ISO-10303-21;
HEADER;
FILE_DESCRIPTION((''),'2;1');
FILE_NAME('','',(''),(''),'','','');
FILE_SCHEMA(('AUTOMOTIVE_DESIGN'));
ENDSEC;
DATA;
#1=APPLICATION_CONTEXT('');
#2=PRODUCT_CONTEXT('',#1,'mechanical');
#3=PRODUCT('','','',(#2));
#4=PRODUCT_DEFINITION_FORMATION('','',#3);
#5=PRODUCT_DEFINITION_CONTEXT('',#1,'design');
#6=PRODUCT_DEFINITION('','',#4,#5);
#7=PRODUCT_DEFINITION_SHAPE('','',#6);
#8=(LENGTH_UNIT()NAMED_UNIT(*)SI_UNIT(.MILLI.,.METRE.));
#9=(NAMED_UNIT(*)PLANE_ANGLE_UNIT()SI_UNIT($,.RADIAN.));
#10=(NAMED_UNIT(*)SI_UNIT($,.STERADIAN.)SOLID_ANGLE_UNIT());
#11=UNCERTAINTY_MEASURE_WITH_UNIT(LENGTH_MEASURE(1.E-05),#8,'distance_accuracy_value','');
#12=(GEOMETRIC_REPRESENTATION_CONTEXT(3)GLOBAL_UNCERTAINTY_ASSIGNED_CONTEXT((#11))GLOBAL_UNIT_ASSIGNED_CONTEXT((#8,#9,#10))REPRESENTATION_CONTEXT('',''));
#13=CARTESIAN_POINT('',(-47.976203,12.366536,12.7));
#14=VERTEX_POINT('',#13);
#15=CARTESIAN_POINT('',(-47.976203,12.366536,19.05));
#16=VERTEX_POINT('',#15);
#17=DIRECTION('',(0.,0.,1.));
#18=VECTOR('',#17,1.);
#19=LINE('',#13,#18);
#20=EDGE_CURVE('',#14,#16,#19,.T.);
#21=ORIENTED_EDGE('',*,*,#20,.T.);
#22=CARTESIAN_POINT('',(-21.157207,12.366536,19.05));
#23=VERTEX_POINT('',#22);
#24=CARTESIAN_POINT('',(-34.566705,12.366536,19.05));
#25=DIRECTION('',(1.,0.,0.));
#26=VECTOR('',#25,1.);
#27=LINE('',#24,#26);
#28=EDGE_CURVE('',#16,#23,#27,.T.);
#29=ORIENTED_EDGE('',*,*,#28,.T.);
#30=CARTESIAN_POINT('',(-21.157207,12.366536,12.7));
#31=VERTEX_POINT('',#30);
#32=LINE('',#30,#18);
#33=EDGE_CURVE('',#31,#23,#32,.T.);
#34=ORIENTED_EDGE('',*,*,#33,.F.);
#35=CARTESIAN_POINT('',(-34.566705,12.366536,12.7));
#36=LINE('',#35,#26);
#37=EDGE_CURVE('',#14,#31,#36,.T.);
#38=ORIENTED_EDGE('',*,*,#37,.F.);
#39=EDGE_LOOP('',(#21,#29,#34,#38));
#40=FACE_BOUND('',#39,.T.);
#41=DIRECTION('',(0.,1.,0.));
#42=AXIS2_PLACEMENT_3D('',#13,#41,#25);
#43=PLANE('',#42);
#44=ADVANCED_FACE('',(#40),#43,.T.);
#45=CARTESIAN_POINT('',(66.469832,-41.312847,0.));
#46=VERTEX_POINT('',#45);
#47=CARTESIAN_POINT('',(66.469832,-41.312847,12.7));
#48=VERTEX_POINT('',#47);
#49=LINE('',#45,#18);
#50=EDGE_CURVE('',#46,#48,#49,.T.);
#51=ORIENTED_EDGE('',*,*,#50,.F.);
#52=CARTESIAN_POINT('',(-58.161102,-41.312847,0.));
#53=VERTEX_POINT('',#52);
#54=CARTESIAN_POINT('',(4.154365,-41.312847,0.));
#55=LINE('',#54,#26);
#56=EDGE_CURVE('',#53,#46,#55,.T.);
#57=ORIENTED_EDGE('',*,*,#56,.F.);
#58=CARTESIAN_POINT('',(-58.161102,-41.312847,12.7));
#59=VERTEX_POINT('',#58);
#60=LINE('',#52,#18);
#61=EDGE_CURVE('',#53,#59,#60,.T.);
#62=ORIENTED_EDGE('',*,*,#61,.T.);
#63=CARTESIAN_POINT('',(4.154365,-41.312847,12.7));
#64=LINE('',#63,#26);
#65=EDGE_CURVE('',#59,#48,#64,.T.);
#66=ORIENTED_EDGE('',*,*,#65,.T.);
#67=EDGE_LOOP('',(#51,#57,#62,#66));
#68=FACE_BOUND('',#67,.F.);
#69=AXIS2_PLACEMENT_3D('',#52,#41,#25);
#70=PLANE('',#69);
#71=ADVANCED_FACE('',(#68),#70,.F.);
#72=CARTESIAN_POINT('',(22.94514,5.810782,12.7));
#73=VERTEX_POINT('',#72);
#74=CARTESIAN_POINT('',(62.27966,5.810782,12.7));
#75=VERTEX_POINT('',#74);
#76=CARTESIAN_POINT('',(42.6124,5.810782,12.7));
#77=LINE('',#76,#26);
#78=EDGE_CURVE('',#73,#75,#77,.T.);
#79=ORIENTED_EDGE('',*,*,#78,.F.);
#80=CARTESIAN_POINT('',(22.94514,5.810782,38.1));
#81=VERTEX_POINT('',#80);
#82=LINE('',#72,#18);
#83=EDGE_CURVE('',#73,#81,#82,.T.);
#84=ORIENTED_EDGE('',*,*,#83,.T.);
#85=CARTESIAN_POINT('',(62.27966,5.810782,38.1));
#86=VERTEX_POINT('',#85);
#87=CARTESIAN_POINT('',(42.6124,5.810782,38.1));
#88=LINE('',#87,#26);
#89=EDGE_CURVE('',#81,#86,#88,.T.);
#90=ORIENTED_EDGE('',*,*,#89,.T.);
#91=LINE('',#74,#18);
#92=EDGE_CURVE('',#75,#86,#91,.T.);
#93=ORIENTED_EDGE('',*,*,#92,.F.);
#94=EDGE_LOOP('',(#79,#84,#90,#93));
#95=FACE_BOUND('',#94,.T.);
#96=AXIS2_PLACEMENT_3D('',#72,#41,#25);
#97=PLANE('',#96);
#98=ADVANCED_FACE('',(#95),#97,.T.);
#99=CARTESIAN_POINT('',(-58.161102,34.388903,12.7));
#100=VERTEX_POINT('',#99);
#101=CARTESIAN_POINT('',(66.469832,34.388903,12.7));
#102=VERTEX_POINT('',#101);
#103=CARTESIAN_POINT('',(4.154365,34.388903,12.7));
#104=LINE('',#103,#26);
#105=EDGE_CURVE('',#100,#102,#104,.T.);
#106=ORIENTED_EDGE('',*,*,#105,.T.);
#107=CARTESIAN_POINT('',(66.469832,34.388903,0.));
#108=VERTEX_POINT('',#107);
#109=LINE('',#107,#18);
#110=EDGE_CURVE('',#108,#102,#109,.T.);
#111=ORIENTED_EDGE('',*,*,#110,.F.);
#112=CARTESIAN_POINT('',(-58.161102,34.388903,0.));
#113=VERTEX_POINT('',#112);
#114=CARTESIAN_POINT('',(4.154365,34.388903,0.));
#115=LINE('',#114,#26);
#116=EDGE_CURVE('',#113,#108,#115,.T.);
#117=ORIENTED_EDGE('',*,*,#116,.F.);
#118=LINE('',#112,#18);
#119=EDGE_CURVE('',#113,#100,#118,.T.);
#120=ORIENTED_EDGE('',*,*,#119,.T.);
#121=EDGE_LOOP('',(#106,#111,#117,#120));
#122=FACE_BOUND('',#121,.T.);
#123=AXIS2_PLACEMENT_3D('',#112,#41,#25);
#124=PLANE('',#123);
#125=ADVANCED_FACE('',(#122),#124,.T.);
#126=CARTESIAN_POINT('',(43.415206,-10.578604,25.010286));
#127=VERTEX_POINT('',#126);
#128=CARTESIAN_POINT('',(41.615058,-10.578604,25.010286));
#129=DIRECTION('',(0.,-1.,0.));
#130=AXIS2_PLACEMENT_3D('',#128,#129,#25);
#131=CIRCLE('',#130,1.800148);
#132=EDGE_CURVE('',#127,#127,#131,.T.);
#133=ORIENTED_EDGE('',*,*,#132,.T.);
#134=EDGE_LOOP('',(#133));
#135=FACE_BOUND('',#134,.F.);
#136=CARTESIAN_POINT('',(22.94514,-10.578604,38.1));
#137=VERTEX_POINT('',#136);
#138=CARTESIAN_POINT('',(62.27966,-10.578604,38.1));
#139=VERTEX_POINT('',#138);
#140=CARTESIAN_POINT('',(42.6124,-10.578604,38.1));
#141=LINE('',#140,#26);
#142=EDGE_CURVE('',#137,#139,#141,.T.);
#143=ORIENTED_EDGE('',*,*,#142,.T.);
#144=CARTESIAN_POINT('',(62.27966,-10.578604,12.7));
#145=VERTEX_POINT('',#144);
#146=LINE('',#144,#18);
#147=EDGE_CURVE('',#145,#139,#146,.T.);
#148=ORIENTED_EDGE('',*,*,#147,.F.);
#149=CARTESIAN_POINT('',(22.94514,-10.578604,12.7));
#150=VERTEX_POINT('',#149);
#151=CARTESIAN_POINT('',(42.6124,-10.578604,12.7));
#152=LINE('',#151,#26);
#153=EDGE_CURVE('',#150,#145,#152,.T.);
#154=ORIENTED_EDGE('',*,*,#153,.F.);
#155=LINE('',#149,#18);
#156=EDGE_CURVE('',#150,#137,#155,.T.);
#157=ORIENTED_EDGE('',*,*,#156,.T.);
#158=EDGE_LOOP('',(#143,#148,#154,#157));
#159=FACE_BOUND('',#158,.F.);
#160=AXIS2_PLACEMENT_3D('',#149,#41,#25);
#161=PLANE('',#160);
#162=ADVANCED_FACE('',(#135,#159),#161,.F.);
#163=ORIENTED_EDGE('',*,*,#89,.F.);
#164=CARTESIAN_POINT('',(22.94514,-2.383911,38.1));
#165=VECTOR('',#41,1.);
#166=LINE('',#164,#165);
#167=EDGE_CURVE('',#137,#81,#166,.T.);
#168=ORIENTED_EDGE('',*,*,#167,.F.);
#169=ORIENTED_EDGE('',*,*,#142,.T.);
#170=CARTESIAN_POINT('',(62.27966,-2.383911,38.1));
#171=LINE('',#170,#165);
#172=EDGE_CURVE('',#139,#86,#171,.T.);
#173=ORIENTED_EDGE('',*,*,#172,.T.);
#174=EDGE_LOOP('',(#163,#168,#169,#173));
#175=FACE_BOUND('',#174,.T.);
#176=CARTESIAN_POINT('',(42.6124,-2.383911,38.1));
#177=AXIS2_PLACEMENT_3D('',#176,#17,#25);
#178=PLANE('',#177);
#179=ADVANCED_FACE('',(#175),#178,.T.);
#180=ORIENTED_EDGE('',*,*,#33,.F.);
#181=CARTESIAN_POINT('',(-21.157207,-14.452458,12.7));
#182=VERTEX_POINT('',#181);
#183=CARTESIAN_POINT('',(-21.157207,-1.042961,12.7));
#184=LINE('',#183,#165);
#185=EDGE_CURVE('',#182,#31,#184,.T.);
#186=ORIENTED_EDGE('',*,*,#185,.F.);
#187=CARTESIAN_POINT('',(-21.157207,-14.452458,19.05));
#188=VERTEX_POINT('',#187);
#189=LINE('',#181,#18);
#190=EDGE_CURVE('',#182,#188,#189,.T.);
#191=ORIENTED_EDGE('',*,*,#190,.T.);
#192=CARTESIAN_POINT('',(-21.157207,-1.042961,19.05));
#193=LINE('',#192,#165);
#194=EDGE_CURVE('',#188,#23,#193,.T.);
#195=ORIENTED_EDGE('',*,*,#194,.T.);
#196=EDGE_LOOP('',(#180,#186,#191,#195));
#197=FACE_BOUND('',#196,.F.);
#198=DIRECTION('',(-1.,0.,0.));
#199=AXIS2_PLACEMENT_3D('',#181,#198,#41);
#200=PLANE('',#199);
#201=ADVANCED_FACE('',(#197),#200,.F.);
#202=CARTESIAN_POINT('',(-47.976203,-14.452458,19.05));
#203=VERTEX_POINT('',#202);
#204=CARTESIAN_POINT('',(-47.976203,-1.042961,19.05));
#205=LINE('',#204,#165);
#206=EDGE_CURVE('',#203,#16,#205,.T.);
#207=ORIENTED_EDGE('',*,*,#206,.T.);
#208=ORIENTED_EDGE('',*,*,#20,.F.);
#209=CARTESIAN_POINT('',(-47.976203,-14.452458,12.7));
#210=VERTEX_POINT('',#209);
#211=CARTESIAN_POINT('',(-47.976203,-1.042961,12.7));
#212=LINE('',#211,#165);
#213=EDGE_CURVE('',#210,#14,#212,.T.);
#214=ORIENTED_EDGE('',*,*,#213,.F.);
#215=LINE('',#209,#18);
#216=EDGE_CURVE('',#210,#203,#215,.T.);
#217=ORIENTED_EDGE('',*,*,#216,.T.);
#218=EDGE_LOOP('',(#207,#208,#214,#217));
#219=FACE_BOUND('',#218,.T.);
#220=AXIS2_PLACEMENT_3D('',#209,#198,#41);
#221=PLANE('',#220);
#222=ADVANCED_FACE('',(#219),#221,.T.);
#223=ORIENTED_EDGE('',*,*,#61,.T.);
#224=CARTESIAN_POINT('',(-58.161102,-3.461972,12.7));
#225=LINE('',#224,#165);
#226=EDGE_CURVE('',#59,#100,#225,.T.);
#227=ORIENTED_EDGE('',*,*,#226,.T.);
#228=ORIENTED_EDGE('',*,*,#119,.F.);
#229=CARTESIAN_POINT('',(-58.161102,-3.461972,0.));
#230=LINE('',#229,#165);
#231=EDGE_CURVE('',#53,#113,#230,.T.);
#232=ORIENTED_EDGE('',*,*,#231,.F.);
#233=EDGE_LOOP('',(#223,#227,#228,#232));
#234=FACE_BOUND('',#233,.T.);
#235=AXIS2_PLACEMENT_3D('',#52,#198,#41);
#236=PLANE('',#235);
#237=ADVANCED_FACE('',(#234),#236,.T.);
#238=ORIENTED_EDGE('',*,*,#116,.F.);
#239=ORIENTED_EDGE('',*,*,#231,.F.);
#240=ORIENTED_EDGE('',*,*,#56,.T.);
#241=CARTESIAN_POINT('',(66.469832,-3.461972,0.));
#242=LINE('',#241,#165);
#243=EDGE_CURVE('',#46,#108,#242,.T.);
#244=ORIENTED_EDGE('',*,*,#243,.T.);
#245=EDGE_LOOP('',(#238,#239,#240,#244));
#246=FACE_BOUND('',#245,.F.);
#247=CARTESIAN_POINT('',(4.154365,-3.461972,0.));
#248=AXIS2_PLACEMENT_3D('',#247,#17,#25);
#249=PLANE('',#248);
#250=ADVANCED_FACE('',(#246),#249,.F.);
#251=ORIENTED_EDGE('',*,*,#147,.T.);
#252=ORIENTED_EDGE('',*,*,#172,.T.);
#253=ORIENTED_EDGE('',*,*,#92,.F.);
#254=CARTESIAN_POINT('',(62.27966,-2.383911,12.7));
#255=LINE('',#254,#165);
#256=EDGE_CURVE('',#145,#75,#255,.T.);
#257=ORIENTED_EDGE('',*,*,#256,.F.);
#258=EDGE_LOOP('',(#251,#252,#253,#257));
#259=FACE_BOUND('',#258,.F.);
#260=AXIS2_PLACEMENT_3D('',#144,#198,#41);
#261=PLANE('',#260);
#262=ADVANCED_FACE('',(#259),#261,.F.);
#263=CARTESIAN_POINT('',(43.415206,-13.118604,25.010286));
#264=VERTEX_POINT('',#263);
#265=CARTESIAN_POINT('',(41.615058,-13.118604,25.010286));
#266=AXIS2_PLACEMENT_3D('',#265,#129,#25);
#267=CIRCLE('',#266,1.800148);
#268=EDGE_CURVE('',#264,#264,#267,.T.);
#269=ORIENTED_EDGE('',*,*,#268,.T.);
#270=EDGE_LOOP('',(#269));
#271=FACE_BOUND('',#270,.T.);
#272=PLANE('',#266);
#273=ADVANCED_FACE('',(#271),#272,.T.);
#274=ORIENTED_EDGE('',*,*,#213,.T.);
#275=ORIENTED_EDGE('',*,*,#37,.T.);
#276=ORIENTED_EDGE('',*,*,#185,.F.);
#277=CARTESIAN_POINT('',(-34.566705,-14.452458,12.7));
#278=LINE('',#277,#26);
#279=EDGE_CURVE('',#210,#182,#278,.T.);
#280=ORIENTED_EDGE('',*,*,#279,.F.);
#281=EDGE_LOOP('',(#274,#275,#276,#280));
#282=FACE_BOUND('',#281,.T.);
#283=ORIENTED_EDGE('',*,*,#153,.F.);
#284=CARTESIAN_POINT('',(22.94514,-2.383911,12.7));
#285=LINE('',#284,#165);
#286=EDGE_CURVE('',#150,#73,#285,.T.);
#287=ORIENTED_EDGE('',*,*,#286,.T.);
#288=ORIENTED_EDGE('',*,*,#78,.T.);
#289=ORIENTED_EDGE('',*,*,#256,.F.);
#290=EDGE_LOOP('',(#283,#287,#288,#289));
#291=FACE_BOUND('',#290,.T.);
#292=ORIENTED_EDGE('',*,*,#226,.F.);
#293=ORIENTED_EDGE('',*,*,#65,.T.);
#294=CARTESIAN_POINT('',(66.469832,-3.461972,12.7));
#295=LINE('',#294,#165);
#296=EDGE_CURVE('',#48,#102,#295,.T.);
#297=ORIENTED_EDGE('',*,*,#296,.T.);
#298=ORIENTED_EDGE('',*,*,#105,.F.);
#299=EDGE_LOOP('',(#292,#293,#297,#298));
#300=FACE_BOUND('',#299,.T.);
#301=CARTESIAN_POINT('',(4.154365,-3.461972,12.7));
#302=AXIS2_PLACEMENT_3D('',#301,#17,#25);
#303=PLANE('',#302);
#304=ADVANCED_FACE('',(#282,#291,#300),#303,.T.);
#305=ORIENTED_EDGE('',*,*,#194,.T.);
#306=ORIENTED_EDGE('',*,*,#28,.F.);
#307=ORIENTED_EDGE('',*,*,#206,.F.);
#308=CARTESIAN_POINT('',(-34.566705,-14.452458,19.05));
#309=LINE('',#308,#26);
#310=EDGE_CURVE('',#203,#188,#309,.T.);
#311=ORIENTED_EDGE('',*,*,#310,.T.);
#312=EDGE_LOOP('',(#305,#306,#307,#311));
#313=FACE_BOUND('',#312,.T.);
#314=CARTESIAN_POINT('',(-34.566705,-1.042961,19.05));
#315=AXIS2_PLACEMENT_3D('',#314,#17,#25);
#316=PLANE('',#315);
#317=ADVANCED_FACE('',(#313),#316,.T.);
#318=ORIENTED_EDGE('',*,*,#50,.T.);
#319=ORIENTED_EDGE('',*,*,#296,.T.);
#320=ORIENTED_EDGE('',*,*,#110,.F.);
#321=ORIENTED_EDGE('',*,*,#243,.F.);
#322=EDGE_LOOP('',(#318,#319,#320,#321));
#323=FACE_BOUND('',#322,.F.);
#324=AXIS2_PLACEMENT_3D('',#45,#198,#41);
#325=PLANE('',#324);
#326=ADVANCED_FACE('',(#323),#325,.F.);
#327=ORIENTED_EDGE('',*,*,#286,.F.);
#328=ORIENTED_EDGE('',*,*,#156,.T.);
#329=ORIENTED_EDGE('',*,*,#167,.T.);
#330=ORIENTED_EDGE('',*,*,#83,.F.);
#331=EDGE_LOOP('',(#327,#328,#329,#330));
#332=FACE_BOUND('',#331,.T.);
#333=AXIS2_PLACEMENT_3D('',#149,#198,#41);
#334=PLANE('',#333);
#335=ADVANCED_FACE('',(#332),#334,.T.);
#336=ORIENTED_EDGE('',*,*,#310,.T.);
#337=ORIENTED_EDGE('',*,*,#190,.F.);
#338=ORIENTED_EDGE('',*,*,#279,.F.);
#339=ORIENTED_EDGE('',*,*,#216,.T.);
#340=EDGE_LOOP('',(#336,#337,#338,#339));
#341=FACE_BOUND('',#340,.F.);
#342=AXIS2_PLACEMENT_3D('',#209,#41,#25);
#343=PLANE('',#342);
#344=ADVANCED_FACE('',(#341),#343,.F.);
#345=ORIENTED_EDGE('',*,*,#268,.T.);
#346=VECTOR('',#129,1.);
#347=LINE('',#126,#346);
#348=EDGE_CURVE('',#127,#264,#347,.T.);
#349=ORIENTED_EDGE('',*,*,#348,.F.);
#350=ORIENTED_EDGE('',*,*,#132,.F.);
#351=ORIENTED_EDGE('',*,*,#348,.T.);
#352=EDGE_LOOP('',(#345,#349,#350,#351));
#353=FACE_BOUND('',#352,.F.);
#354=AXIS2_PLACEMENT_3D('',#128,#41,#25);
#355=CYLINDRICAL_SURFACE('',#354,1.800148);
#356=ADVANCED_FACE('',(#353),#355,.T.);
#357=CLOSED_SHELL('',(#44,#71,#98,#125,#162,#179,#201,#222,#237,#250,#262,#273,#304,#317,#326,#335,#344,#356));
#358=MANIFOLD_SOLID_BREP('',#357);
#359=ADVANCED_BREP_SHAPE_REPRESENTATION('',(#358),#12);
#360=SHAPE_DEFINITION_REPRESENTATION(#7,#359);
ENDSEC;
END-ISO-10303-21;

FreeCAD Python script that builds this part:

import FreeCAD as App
import Part
import Sketcher
from FreeCAD import Vector
Q = App.Units.Quantity

doc = App.newDocument("Part")
body = doc.addObject("PartDesign::Body", "Body")

# Sketch on XY plane
sketch1 = body.newObject("Sketcher::SketchObject", "Sketch")
sketch1.AttachmentSupport = (doc.getObject("XY_Plane"), [""])
sketch1.MapMode = "FlatFace"
sketch1.addGeometry([
    Part.LineSegment(Vector(-58, 34, 0), Vector(-58, -41, 0)),
    Part.LineSegment(Vector(-58, -41, 0), Vector(66, -41, 0)),
    Part.LineSegment(Vector(66, -41, 0), Vector(66, 34, 0)),
    Part.LineSegment(Vector(66, 34, 0), Vector(-58, 34, 0)),
], False)
sketch1.addConstraint([
    Sketcher.Constraint("Coincident", 0, 2, 1, 1),
    Sketcher.Constraint("Coincident", 1, 2, 2, 1),
    Sketcher.Constraint("Coincident", 2, 2, 3, 1),
    Sketcher.Constraint("Coincident", 3, 2, 0, 1),
    Sketcher.Constraint("Vertical", 0),
    Sketcher.Constraint("Horizontal", 1),
    Sketcher.Constraint("Vertical", 2),
    Sketcher.Constraint("Horizontal", 3),
    Sketcher.Constraint("DistanceY", 0, 2, 0, 1, Q("75.701751 mm")),
    Sketcher.Constraint("DistanceX", 1, 1, 1, 2, Q("124.630935 mm")),
    Sketcher.Constraint("DistanceX", 0, 2, -1, 1, Q("58.161102 mm")),
    Sketcher.Constraint("DistanceY", 0, 2, -1, 1, Q("41.312847 mm")),
])
pad1 = body.newObject("PartDesign::Pad", "Pad")
pad1.Profile = sketch1
pad1.Length = Q("0.5 in")

# Sketch on XY plane
sketch2 = body.newObject("Sketcher::SketchObject", "Sketch001")
sketch2.AttachmentSupport = (doc.getObject("XY_Plane"), [""])
sketch2.MapMode = "FlatFace"
sketch2.AttachmentOffset = App.Placement(Vector(0, 0, 0.5 * 25.4), App.Rotation())
sketch2.addGeometry([
    Part.LineSegment(Vector(23, 6, 0), Vector(23, -11, 0)),
    Part.LineSegment(Vector(23, -11, 0), Vector(62, -11, 0)),
    Part.LineSegment(Vector(62, -11, 0), Vector(62, 6, 0)),
    Part.LineSegment(Vector(62, 6, 0), Vector(23, 6, 0)),
], False)
sketch2.addConstraint([
    Sketcher.Constraint("Coincident", 0, 2, 1, 1),
    Sketcher.Constraint("Coincident", 1, 2, 2, 1),
    Sketcher.Constraint("Coincident", 2, 2, 3, 1),
    Sketcher.Constraint("Coincident", 3, 2, 0, 1),
    Sketcher.Constraint("Vertical", 0),
    Sketcher.Constraint("Horizontal", 1),
    Sketcher.Constraint("Vertical", 2),
    Sketcher.Constraint("Horizontal", 3),
    Sketcher.Constraint("DistanceX", 1, 1, 1, 2, Q("39.33452 mm")),
    Sketcher.Constraint("DistanceY", 0, 2, 0, 1, Q("16.389386 mm")),
    Sketcher.Constraint("DistanceX", -1, 1, 0, 2, Q("22.94514 mm")),
    Sketcher.Constraint("DistanceY", -1, 1, 2, 2, Q("5.810782 mm")),
])
pad2 = body.newObject("PartDesign::Pad", "Pad001")
pad2.Profile = sketch2
pad2.Length = Q("1 in")

# Sketch on XY plane
sketch3 = body.newObject("Sketcher::SketchObject", "Sketch002")
sketch3.AttachmentSupport = (doc.getObject("XY_Plane"), [""])
sketch3.MapMode = "FlatFace"
sketch3.AttachmentOffset = App.Placement(Vector(0, 0, 0.5 * 25.4), App.Rotation())
sketch3.addGeometry([
    Part.LineSegment(Vector(-48, 12, 0), Vector(-48, -14, 0)),
    Part.LineSegment(Vector(-48, -14, 0), Vector(-21, -14, 0)),
    Part.LineSegment(Vector(-21, -14, 0), Vector(-21, 12, 0)),
    Part.LineSegment(Vector(-21, 12, 0), Vector(-48, 12, 0)),
], False)
sketch3.addConstraint([
    Sketcher.Constraint("Coincident", 0, 2, 1, 1),
    Sketcher.Constraint("Coincident", 1, 2, 2, 1),
    Sketcher.Constraint("Coincident", 2, 2, 3, 1),
    Sketcher.Constraint("Coincident", 3, 2, 0, 1),
    Sketcher.Constraint("Vertical", 0),
    Sketcher.Constraint("Horizontal", 1),
    Sketcher.Constraint("Vertical", 2),
    Sketcher.Constraint("Horizontal", 3),
    Sketcher.Constraint("Equal", 3, 0),
    Sketcher.Constraint("DistanceX", 1, 1, 1, 2, Q("26.818996 mm")),
    Sketcher.Constraint("DistanceX", 0, 2, -1, 1, Q("47.976203 mm")),
    Sketcher.Constraint("DistanceY", 0, 2, -1, 1, Q("14.452458 mm")),
])
pad3 = body.newObject("PartDesign::Pad", "Pad002")
pad3.Profile = sketch3
pad3.Length = Q("0.25 in")

# Sketch on XZ plane
sketch4 = body.newObject("Sketcher::SketchObject", "Sketch003")
sketch4.AttachmentSupport = (doc.getObject("XZ_Plane"), [""])
sketch4.MapMode = "FlatFace"
sketch4.AttachmentOffset = App.Placement(Vector(0, 0, 10.578604), App.Rotation())
sketch4.addGeometry(Part.Circle(Vector(41.6, 25, 0), Vector(0, 0, 1), 1.8), False)
sketch4.addConstraint([
    Sketcher.Constraint("Diameter", 0, Q("3.600296 mm")),
    Sketcher.Constraint("DistanceX", -1, 1, 0, 3, Q("41.615058 mm")),
    Sketcher.Constraint("DistanceY", -1, 1, 0, 3, Q("25.010286 mm")),
])
pad4 = body.newObject("PartDesign::Pad", "Pad003")
pad4.Profile = sketch4
pad4.Length = Q("0.1 in")

doc.recompute()
